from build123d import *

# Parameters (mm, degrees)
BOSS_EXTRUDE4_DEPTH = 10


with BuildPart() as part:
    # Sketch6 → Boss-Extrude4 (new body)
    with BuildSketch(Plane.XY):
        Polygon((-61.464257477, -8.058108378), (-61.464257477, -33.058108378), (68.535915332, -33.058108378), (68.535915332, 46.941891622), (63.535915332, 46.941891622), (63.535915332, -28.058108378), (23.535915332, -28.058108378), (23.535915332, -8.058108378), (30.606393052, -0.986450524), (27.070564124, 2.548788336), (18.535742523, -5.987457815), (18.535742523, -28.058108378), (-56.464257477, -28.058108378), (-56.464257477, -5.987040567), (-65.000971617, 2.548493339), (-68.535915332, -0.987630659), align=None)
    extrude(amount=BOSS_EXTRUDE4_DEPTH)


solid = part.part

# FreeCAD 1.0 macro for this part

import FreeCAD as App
import Part
import Sketcher
Q = App.Units.Quantity

doc = App.newDocument("Part")
body = doc.addObject("PartDesign::Body", "Body")

sketch1 = doc.addObject("Sketcher::SketchObject", "Sketch")
body.addObject(sketch1)
sketch1.AttachmentSupport = (doc.XY_Plane, [""])
sketch1.MapMode = "FlatFace"
sketch1.addGeometry([
    Part.LineSegment(App.Vector(-61.5, -8.1, 0), App.Vector(-61.5, -33.1, 0)),
    Part.LineSegment(App.Vector(-61.5, -33.1, 0), App.Vector(68.5, -33.1, 0)),
    Part.LineSegment(App.Vector(68.5, -33.1, 0), App.Vector(68.5, 46.9, 0)),
    Part.LineSegment(App.Vector(68.5, 46.9, 0), App.Vector(63.5, 46.9, 0)),
    Part.LineSegment(App.Vector(63.5, 46.9, 0), App.Vector(63.5, -28.1, 0)),
    Part.LineSegment(App.Vector(63.5, -28.1, 0), App.Vector(23.5, -28.1, 0)),
    Part.LineSegment(App.Vector(23.5, -28.1, 0), App.Vector(23.5, -8.1, 0)),
    Part.LineSegment(App.Vector(23.5, -8.1, 0), App.Vector(30.6, -1, 0)),
    Part.LineSegment(App.Vector(30.6, -1, 0), App.Vector(27.1, 2.5, 0)),
    Part.LineSegment(App.Vector(27.1, 2.5, 0), App.Vector(18.5, -6, 0)),
    Part.LineSegment(App.Vector(18.5, -6, 0), App.Vector(18.5, -28.1, 0)),
    Part.LineSegment(App.Vector(18.5, -28.1, 0), App.Vector(-56.5, -28.1, 0)),
    Part.LineSegment(App.Vector(-56.5, -28.1, 0), App.Vector(-56.5, -6, 0)),
    Part.LineSegment(App.Vector(-56.5, -6, 0), App.Vector(-65, 2.5, 0)),
    Part.LineSegment(App.Vector(-65, 2.5, 0), App.Vector(-68.5, -1, 0)),
    Part.LineSegment(App.Vector(-68.5, -1, 0), App.Vector(-61.5, -8.1, 0)),
], False)
sketch1.addConstraint([
    Sketcher.Constraint("Coincident", 0, 2, 1, 1),
    Sketcher.Constraint("Coincident", 1, 2, 2, 1),
    Sketcher.Constraint("Coincident", 2, 2, 3, 1),
    Sketcher.Constraint("Coincident", 3, 2, 4, 1),
    Sketcher.Constraint("Coincident", 4, 2, 5, 1),
    Sketcher.Constraint("Coincident", 5, 2, 6, 1),
    Sketcher.Constraint("Coincident", 6, 2, 7, 1),
    Sketcher.Constraint("Coincident", 7, 2, 8, 1),
    Sketcher.Constraint("Coincident", 8, 2, 9, 1),
    Sketcher.Constraint("Coincident", 9, 2, 10, 1),
    Sketcher.Constraint("Coincident", 10, 2, 11, 1),
    Sketcher.Constraint("Coincident", 11, 2, 12, 1),
    Sketcher.Constraint("Coincident", 12, 2, 13, 1),
    Sketcher.Constraint("Coincident", 13, 2, 14, 1),
    Sketcher.Constraint("Coincident", 14, 2, 15, 1),
    Sketcher.Constraint("Coincident", 15, 2, 0, 1),
    Sketcher.Constraint("Vertical", 0),
    Sketcher.Constraint("Horizontal", 1),
    Sketcher.Constraint("Vertical", 2),
    Sketcher.Constraint("Horizontal", 3),
    Sketcher.Constraint("Vertical", 4),
    Sketcher.Constraint("Horizontal", 5),
    Sketcher.Constraint("Vertical", 6),
    Sketcher.Constraint("Vertical", 10),
    Sketcher.Constraint("Horizontal", 11),
    Sketcher.Constraint("Vertical", 12),
    Sketcher.Constraint("Perpendicular", 7, 8),
    Sketcher.Constraint("Perpendicular", 8, 9),
    Sketcher.Constraint("Perpendicular", 9, 15),
    Sketcher.Constraint("Horizontal", 5, 2, 10, 2),
    Sketcher.Constraint("Horizontal", 6, 2, 15, 2),
    Sketcher.Constraint("Equal", 11, 4),
    Sketcher.Constraint("Equal", 8, 14),
    Sketcher.Constraint("Equal", 7, 15),
    Sketcher.Constraint("DistanceX", 3, 2, 3, 1, Q("5 mm")),
    Sketcher.Constraint("DistanceX", 5, 2, 5, 1, Q("40 mm")),
    Sketcher.Constraint("DistanceX", 11, 2, 11, 1, Q("75 mm")),
    Sketcher.Constraint("DistanceY", 0, 2, 0, 1, Q("25 mm")),
    Sketcher.Constraint("DistanceY", 2, 1, 2, 2, Q("80 mm")),
    Sketcher.Constraint("Distance", 7, Q("10 mm")),
    Sketcher.Constraint("Distance", 8, Q("5 mm")),
    Sketcher.Constraint("DistanceX", 0, 2, 11, 2, Q("5 mm")),
    Sketcher.Constraint("DistanceY", 10, 2, 10, 1, Q("22.070651 mm")),
    Sketcher.Constraint("DistanceY", 11, 2, 13, 2, Q("30.606602 mm")),
    Sketcher.Constraint("DistanceX", 1, 1, 1, 2, Q("130.000173 mm")),
    Sketcher.Constraint("DistanceY", 12, 1, 12, 2, Q("22.071068 mm")),
    Sketcher.Constraint("DistanceY", 0, 2, -1, 1, Q("33.058108 mm")),
    Sketcher.Constraint("DistanceX", 13, 2, -1, 1, Q("65.000972 mm")),
])
pad1 = doc.addObject("PartDesign::Pad", "Pad")
body.addObject(pad1)
pad1.Profile = sketch1
pad1.Length = 10

doc.recompute()
